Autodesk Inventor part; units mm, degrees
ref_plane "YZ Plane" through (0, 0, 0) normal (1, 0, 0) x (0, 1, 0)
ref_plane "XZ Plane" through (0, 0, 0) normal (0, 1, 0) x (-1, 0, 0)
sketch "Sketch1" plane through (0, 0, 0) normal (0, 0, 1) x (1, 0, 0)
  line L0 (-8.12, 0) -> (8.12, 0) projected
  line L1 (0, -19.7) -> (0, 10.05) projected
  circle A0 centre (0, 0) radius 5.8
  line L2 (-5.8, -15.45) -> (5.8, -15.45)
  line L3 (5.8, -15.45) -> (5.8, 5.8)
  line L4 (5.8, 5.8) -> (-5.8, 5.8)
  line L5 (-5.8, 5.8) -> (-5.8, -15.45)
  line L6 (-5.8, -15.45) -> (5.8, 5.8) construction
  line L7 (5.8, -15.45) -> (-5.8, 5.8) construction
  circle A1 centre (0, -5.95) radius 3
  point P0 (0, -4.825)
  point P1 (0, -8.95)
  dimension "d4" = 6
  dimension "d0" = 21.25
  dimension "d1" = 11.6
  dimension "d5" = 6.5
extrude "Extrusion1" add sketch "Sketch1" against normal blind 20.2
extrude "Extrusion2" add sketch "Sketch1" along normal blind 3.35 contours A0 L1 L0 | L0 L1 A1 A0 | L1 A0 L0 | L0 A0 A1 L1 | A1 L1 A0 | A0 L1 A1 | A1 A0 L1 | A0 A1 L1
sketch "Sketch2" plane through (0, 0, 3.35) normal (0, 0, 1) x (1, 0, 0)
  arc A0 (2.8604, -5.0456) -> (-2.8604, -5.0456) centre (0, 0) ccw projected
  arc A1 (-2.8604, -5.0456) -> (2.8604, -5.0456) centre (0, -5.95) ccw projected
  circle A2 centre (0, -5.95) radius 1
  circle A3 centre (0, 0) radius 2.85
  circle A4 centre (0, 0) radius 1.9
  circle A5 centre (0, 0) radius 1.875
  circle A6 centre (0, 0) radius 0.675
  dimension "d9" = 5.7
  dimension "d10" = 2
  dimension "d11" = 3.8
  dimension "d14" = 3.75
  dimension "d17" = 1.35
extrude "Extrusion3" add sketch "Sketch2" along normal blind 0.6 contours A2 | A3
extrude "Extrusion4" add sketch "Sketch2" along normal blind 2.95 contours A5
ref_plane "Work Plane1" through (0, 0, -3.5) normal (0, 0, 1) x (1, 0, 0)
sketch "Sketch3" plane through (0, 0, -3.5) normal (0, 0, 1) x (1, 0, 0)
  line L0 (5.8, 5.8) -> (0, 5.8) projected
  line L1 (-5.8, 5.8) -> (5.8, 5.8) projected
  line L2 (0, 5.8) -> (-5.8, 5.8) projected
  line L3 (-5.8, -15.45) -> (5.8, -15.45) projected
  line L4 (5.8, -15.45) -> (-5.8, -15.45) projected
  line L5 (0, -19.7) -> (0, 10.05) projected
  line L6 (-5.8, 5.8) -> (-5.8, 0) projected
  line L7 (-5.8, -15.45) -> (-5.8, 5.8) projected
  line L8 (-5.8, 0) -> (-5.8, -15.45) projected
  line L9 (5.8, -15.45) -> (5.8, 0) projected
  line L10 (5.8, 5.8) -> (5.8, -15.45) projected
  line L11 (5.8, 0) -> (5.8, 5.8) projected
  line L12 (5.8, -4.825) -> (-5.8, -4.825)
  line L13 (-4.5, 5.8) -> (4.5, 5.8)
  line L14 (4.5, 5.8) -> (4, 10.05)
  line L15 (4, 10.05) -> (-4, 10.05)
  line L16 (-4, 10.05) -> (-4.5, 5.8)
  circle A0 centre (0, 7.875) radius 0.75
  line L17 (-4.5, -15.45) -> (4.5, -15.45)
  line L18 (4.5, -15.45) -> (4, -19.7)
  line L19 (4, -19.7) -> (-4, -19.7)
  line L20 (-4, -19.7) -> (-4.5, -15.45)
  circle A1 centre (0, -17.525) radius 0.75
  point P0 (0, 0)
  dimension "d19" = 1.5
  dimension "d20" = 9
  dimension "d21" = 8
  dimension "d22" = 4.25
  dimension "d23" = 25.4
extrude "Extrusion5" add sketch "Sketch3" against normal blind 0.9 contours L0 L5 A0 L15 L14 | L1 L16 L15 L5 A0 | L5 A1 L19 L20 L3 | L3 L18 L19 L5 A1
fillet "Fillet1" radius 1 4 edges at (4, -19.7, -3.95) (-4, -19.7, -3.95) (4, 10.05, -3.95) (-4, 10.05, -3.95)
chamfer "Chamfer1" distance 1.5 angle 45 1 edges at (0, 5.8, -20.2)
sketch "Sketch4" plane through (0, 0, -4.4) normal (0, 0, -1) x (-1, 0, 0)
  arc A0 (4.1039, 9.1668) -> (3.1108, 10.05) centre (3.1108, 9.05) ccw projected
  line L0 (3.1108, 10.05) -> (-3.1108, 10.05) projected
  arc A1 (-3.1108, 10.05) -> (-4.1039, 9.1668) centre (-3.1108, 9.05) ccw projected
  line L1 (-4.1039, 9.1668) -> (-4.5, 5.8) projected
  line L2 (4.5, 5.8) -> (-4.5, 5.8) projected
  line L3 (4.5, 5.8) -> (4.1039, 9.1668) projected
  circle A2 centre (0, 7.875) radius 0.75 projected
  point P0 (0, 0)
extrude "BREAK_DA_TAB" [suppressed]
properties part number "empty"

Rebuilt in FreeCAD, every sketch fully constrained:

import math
import FreeCAD as App
import Part
import Sketcher
from FreeCAD import Vector
Q = App.Units.Quantity


def edges_at(feature, points):
    """Names of the edges that pass closest to the given points."""
    edges = feature.Shape.Edges
    near = lambda p: min(range(len(edges)), key=lambda i: edges[i].distToShape(Part.Vertex(*p))[0])
    return sorted({f"Edge{near(p) + 1}" for p in points})


def add_polygon(sketch, points):
    """Adds a closed chain of lines whose ends are joined by coincident constraints."""
    first, n = sketch.GeometryCount, len(points)
    for a, b in zip(points, points[1:] + points[:1]):
        sketch.addGeometry(Part.LineSegment(App.Vector(*a, 0), App.Vector(*b, 0)), False)
    for i in range(n):
        sketch.addConstraint(Sketcher.Constraint("Coincident", first + i, 2, first + (i + 1) % n, 1))

doc = App.newDocument("Part")
params = doc.addObject("Spreadsheet::Sheet", "Params")
for row, (alias, value) in enumerate([
    ("sketch1_width", "11.6 mm"),
    ("sketch1_height", "21.25 mm"),
    ("pad1_length", "20.2 mm"),
    ("sketch2_radius", "3 mm"),
    ("sketch2_radius2", "5.8 mm"),
    ("pad2_length", "3.35 mm"),
    ("sketch3_diameter", "2 mm"),
    ("sketch3_diameter2", "5.7 mm"),
    ("sketch3_diameter3", "3.8 mm"),
    ("pad3_length", "0.6 mm"),
    ("sketch4_diameter", "3.75 mm"),
    ("sketch4_diameter2", "1.35 mm"),
    ("pad4_length", "2.95 mm"),
    ("sketch5_diameter", "1.5 mm"),
    ("sketch5_width", "8 mm"),
    ("sketch5_width2", "9 mm"),
    ("pad5_length", "0.9 mm"),
    ("fillet_radius", "1 mm"),
    ("chamfer_size", "1.5 mm"),
], start=1):
    params.set(f"A{row}", alias)
    params.set(f"B{row}", "=" + value)
    params.setAlias(f"B{row}", alias)

body = doc.addObject("PartDesign::Body", "Body")

sketch1 = doc.addObject("Sketcher::SketchObject", "Sketch")
body.addObject(sketch1)
sketch1.AttachmentSupport = (doc.XY_Plane, [""])
sketch1.MapMode = "FlatFace"
add_polygon(sketch1, [(-6, 6), (-6, -15), (6, -15), (6, 6)])
sketch1.addConstraint([
    Sketcher.Constraint("Vertical", 0),
    Sketcher.Constraint("Horizontal", 1),
    Sketcher.Constraint("Vertical", 2),
    Sketcher.Constraint("Horizontal", 3),
    Sketcher.Constraint("DistanceX", 1, 1, 1, 2, Q("11.6 mm")),
    Sketcher.Constraint("DistanceY", 0, 2, 0, 1, Q("21.25 mm")),
    Sketcher.Constraint("DistanceX", 0, 2, -1, 1, Q("5.8 mm")),
    Sketcher.Constraint("DistanceY", -1, 1, 2, 2, Q("5.8 mm")),
])
sketch1.setExpression("Constraints[8]", "Params.sketch1_width")
sketch1.setExpression("Constraints[9]", "Params.sketch1_height")
pad1 = doc.addObject("PartDesign::Pad", "Pad")
body.addObject(pad1)
pad1.Profile = sketch1
pad1.setExpression("Length", "Params.pad1_length")
pad1.Reversed = True

sketch2 = doc.addObject("Sketcher::SketchObject", "Sketch001")
body.addObject(sketch2)
sketch2.AttachmentSupport = (doc.XY_Plane, [""])
sketch2.MapMode = "FlatFace"
sketch2.addGeometry([
    Part.ArcOfCircle(Part.Circle(Vector(0, -6, 0), Vector(0, 0, 1), 3), math.radians(162), math.radians(378)),
    Part.ArcOfCircle(Part.Circle(Vector(0, 0, 0), Vector(0, 0, 1), 5.8), math.radians(-60), math.radians(240)),
], False)
sketch2.addConstraint([
    Sketcher.Constraint("Coincident", 0, 1, 1, 2),
    Sketcher.Constraint("Coincident", 1, 1, 0, 2),
    Sketcher.Constraint("Coincident", 1, 3, -1, 1),
    Sketcher.Constraint("PointOnObject", 0, 3, -2),
    Sketcher.Constraint("Radius", 0, Q("3 mm")),
    Sketcher.Constraint("Radius", 1, Q("5.8 mm")),
    Sketcher.Constraint("DistanceY", 0, 3, -1, 1, Q("5.95 mm")),
])
sketch2.setExpression("Constraints[4]", "Params.sketch2_radius")
sketch2.setExpression("Constraints[5]", "Params.sketch2_radius2")
pad2 = doc.addObject("PartDesign::Pad", "Pad001")
body.addObject(pad2)
pad2.Profile = sketch2
pad2.setExpression("Length", "Params.pad2_length")

sketch3 = doc.addObject("Sketcher::SketchObject", "Sketch002")
body.addObject(sketch3)
sketch3.AttachmentSupport = (doc.XY_Plane, [""])
sketch3.MapMode = "FlatFace"
sketch3.AttachmentOffset = App.Placement(Vector(0, 0, 3.35), App.Rotation())
sketch3.addGeometry([
    Part.Circle(Vector(0, -6, 0), Vector(0, 0, 1), 1),
    Part.Circle(Vector(0, 0, 0), Vector(0, 0, 1), 2.9),
    Part.Circle(Vector(0, 0, 0), Vector(0, 0, 1), 1.9),
], False)
sketch3.addConstraint([
    Sketcher.Constraint("Coincident", 1, 3, -1, 1),
    Sketcher.Constraint("Coincident", 2, 3, -1, 1),
    Sketcher.Constraint("PointOnObject", 0, 3, -2),
    Sketcher.Constraint("Diameter", 0, Q("2 mm")),
    Sketcher.Constraint("Diameter", 1, Q("5.7 mm")),
    Sketcher.Constraint("Diameter", 2, Q("3.8 mm")),
    Sketcher.Constraint("DistanceY", 0, 3, -1, 1, Q("5.95 mm")),
])
sketch3.setExpression("Constraints[3]", "Params.sketch3_diameter")
sketch3.setExpression("Constraints[4]", "Params.sketch3_diameter2")
sketch3.setExpression("Constraints[5]", "Params.sketch3_diameter3")
pad3 = doc.addObject("PartDesign::Pad", "Pad002")
body.addObject(pad3)
pad3.Profile = sketch3
pad3.setExpression("Length", "Params.pad3_length")

sketch4 = doc.addObject("Sketcher::SketchObject", "Sketch003")
body.addObject(sketch4)
sketch4.AttachmentSupport = (doc.XY_Plane, [""])
sketch4.MapMode = "FlatFace"
sketch4.AttachmentOffset = App.Placement(Vector(0, 0, 3.35), App.Rotation())
sketch4.addGeometry([
    Part.Circle(Vector(0, 0, 0), Vector(0, 0, 1), 1.9),
    Part.Circle(Vector(0, 0, 0), Vector(0, 0, 1), 0.7),
], False)
sketch4.addConstraint([
    Sketcher.Constraint("Coincident", 0, 3, -1, 1),
    Sketcher.Constraint("Coincident", 1, 3, -1, 1),
    Sketcher.Constraint("Diameter", 0, Q("3.75 mm")),
    Sketcher.Constraint("Diameter", 1, Q("1.35 mm")),
])
sketch4.setExpression("Constraints[2]", "Params.sketch4_diameter")
sketch4.setExpression("Constraints[3]", "Params.sketch4_diameter2")
pad4 = doc.addObject("PartDesign::Pad", "Pad003")
body.addObject(pad4)
pad4.Profile = sketch4
pad4.setExpression("Length", "Params.pad4_length")

sketch5 = doc.addObject("Sketcher::SketchObject", "Sketch004")
body.addObject(sketch5)
sketch5.AttachmentSupport = (doc.XY_Plane, [""])
sketch5.MapMode = "FlatFace"
sketch5.AttachmentOffset = App.Placement(Vector(0, 0, -3.5), App.Rotation())
add_polygon(sketch5, [(4.5, 5.8), (4, 10.1), (-4, 10.1), (-4.5, 5.8)])
sketch5.addGeometry(Part.Circle(Vector(0, 7.9, 0), Vector(0, 0, 1), 0.8), False)
add_polygon(sketch5, [(-4, -19.7), (4, -19.7), (4.5, -15.4), (-4.5, -15.4)])
sketch5.addGeometry(Part.Circle(Vector(0, -17.5, 0), Vector(0, 0, 1), 0.8), False)
sketch5.addConstraint([
    Sketcher.Constraint("Horizontal", 1),
    Sketcher.Constraint("Horizontal", 3),
    Sketcher.Constraint("Horizontal", 5),
    Sketcher.Constraint("Horizontal", 7),
    Sketcher.Constraint("Equal", 4, 9),
    Sketcher.Constraint("PointOnObject", 4, 3, -2),
    Sketcher.Constraint("PointOnObject", 9, 3, -2),
    Sketcher.Constraint("Parallel", 2, 6),
    Sketcher.Constraint("Parallel", 0, 8),
    Sketcher.Constraint("Vertical", 0, 2, 5, 2),
    Sketcher.Constraint("Vertical", 3, 2, 6, 2),
    Sketcher.Constraint("Vertical", 2, 2, 7, 2),
    Sketcher.Constraint("Vertical", 1, 2, 8, 2),
    Sketcher.Constraint("Diameter", 4, Q("1.5 mm")),
    Sketcher.Constraint("DistanceX", 1, 2, 1, 1, Q("8 mm")),
    Sketcher.Constraint("DistanceX", 3, 1, 3, 2, Q("9 mm")),
    Sketcher.Constraint("DistanceY", 9, 3, 4, 3, Q("25.4 mm")),
    Sketcher.Constraint("DistanceY", 2, 2, 1, 2, Q("4.25 mm")),
    Sketcher.Constraint("DistanceX", -1, 1, 0, 2, Q("4 mm")),
    Sketcher.Constraint("DistanceY", -1, 1, 2, 2, Q("5.8 mm")),
    Sketcher.Constraint("DistanceY", 5, 2, -1, 1, Q("19.7 mm")),
    Sketcher.Constraint("DistanceY", -1, 1, 4, 3, Q("7.875 mm")),
])
sketch5.setExpression("Constraints[21]", "Params.sketch5_diameter")
sketch5.setExpression("Constraints[22]", "Params.sketch5_width")
sketch5.setExpression("Constraints[23]", "Params.sketch5_width2")
pad5 = doc.addObject("PartDesign::Pad", "Pad004")
body.addObject(pad5)
pad5.Profile = sketch5
pad5.setExpression("Length", "Params.pad5_length")
pad5.Reversed = True
doc.recompute()

fillet = doc.addObject("PartDesign::Fillet", "Fillet")
body.addObject(fillet)
fillet.Base = (pad5, edges_at(pad5, [
    (4, -19.7, -3.95),
    (-4, -19.7, -3.95),
    (4, 10.05, -3.95),
    (-4, 10.05, -3.95),
]))
fillet.setExpression("Radius", "Params.fillet_radius")
doc.recompute()

chamfer = doc.addObject("PartDesign::Chamfer", "Chamfer")
body.addObject(chamfer)
chamfer.Base = (fillet, edges_at(fillet, [(0, 5.8, -20.2)]))
chamfer.setExpression("Size", "Params.chamfer_size")

doc.recompute()
